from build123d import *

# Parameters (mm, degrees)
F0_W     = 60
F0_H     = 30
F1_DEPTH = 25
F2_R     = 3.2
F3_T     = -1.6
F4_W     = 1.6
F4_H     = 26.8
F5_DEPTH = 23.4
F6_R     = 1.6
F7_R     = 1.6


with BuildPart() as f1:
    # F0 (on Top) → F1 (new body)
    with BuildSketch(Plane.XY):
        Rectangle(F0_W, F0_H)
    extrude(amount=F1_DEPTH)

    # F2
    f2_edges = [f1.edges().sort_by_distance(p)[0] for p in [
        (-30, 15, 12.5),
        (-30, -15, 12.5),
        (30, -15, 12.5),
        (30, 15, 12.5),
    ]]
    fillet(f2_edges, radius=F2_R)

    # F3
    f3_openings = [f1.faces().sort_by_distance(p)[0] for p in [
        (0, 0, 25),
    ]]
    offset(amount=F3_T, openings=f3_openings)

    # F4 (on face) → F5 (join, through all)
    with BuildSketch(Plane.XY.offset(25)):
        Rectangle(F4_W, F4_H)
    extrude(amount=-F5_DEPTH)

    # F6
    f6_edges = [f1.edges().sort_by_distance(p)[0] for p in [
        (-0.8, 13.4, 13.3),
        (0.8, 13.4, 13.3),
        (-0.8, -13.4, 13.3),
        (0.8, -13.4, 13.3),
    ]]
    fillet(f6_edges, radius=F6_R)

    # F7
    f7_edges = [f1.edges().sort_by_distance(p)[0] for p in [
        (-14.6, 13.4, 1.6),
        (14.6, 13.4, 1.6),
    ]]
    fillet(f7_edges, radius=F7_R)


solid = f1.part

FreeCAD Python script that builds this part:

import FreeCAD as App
import Part
import Sketcher

V = App.Vector
Q = App.Units.Quantity


def edges_at(feature, points):
    """Names of the edges that pass closest to the given points."""
    edges = feature.Shape.Edges
    near = lambda p: min(range(len(edges)), key=lambda i: edges[i].distToShape(Part.Vertex(*p))[0])
    return sorted({f"Edge{near(p) + 1}" for p in points})


def faces_at(feature, points):
    """Names of the faces that lie closest to the given points."""
    faces = feature.Shape.Faces
    near = lambda p: min(range(len(faces)), key=lambda i: faces[i].distToShape(Part.Vertex(*p))[0])
    return sorted({f"Face{near(p) + 1}" for p in points})


def add_polygon(sketch, points):
    """Adds a closed chain of lines whose ends are joined by coincident constraints."""
    first, n = sketch.GeometryCount, len(points)
    for a, b in zip(points, points[1:] + points[:1]):
        sketch.addGeometry(Part.LineSegment(App.Vector(*a, 0), App.Vector(*b, 0)), False)
    for i in range(n):
        sketch.addConstraint(Sketcher.Constraint("Coincident", first + i, 2, first + (i + 1) % n, 1))

doc = App.newDocument("Part")
body = doc.addObject("PartDesign::Body", "Body")

sketch1 = body.newObject("Sketcher::SketchObject", "Sketch")
sketch1.AttachmentSupport = (doc.getObject("XY_Plane"), [""])
sketch1.MapMode = "FlatFace"
add_polygon(sketch1, [(-30, 15), (-30, -15), (30, -15), (30, 15)])
sketch1.addConstraint(Sketcher.Constraint("Vertical", 0))
sketch1.addConstraint(Sketcher.Constraint("Horizontal", 1))
sketch1.addConstraint(Sketcher.Constraint("Vertical", 2))
sketch1.addConstraint(Sketcher.Constraint("Horizontal", 3))
sketch1.addConstraint(Sketcher.Constraint("Symmetric", 0, 2, 2, 2, -1, 1))
sketch1.addConstraint(Sketcher.Constraint("DistanceX", 1, 1, 1, 2, Q("60 mm")))
sketch1.addConstraint(Sketcher.Constraint("DistanceY", 0, 2, 0, 1, Q("30 mm")))
pad1 = body.newObject("PartDesign::Pad", "Pad")
pad1.Profile = sketch1
pad1.Length = 25
doc.recompute()

fillet = body.newObject("PartDesign::Fillet", "Fillet")
fillet.Base = (pad1, edges_at(pad1, [
    (-30, 15, 12.5),
    (-30, -15, 12.5),
    (30, -15, 12.5),
    (30, 15, 12.5),
]))
fillet.Radius = 3.2
doc.recompute()

thickness = body.newObject("PartDesign::Thickness", "Thickness")
thickness.Base = (fillet, faces_at(fillet, [(0, 0, 25)]))
thickness.Value = 1.6
thickness.Reversed = True
thickness.Join = "Arc"

sketch2 = body.newObject("Sketcher::SketchObject", "Sketch001")
sketch2.AttachmentSupport = (doc.getObject("XY_Plane"), [""])
sketch2.MapMode = "FlatFace"
sketch2.AttachmentOffset = App.Placement(V(0, 0, 25), App.Rotation())
add_polygon(sketch2, [(-0.8, 13.4), (-0.8, -13.4), (0.8, -13.4), (0.8, 13.4)])
sketch2.addConstraint(Sketcher.Constraint("Vertical", 0))
sketch2.addConstraint(Sketcher.Constraint("Horizontal", 1))
sketch2.addConstraint(Sketcher.Constraint("Vertical", 2))
sketch2.addConstraint(Sketcher.Constraint("Horizontal", 3))
sketch2.addConstraint(Sketcher.Constraint("Symmetric", 0, 2, 2, 2, -1, 1))
sketch2.addConstraint(Sketcher.Constraint("DistanceX", 1, 1, 1, 2, Q("1.6 mm")))
sketch2.addConstraint(Sketcher.Constraint("DistanceY", 0, 2, 0, 1, Q("26.8 mm")))
pad2 = body.newObject("PartDesign::Pad", "Pad001")
pad2.Profile = sketch2
pad2.Type = "UpToLast"
pad2.Reversed = True
doc.recompute()

fillet2 = body.newObject("PartDesign::Fillet", "Fillet001")
fillet2.Base = (pad2, edges_at(pad2, [
    (-0.8, 13.4, 13.3),
    (0.8, 13.4, 13.3),
    (-0.8, -13.4, 13.3),
    (0.8, -13.4, 13.3),
]))
fillet2.Radius = 1.6
doc.recompute()

fillet3 = body.newObject("PartDesign::Fillet", "Fillet002")
fillet3.Base = (fillet2, edges_at(fillet2, [(-14.6, 13.4, 1.6), (14.6, 13.4, 1.6)]))
fillet3.Radius = 1.6

doc.recompute()
